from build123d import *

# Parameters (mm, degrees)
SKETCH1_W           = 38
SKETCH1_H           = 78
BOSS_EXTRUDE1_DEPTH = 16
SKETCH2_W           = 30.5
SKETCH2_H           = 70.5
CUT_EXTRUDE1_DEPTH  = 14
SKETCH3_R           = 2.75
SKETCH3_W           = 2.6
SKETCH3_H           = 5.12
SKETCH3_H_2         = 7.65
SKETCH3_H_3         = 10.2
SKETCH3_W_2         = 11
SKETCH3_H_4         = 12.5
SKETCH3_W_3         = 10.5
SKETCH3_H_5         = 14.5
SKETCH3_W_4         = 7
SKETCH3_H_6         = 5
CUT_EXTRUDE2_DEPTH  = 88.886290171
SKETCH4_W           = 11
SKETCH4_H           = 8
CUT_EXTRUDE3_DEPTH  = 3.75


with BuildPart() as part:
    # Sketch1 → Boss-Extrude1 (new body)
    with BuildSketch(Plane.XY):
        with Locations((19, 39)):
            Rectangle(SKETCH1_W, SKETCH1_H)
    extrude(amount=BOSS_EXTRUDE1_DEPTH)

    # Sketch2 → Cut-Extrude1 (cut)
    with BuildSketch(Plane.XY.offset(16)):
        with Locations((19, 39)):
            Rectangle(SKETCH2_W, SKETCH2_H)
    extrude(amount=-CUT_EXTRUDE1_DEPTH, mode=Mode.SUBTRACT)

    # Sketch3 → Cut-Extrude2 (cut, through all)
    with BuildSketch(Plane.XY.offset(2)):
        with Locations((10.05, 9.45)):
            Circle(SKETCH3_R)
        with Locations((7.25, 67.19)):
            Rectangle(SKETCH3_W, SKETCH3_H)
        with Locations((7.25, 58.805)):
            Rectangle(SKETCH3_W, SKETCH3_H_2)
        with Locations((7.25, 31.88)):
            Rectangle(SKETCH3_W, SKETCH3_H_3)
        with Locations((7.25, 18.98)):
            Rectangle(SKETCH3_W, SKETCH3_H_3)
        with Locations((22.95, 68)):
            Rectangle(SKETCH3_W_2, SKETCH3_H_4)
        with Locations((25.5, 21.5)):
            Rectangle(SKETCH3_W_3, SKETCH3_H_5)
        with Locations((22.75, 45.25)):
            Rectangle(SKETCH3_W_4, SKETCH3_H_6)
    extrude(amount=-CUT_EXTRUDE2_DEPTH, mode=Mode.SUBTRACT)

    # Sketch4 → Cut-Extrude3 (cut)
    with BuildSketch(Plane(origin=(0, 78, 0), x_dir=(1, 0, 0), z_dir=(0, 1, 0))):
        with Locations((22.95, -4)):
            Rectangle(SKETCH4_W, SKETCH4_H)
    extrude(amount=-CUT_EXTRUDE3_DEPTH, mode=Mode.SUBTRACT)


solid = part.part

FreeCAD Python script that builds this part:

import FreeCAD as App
import Part
import Sketcher
from FreeCAD import Vector
Q = App.Units.Quantity

doc = App.newDocument("Part")
body = doc.addObject("PartDesign::Body", "Body")

sketch1 = doc.addObject("Sketcher::SketchObject", "Sketch")
body.addObject(sketch1)
sketch1.AttachmentSupport = (doc.XY_Plane, [""])
sketch1.MapMode = "FlatFace"
sketch1.addGeometry([
    Part.LineSegment(Vector(0, 78, 0), Vector(0, 0, 0)),
    Part.LineSegment(Vector(0, 0, 0), Vector(38, 0, 0)),
    Part.LineSegment(Vector(38, 0, 0), Vector(38, 78, 0)),
    Part.LineSegment(Vector(38, 78, 0), Vector(0, 78, 0)),
], False)
sketch1.addConstraint([
    Sketcher.Constraint("Coincident", 0, 2, 1, 1),
    Sketcher.Constraint("Coincident", 1, 2, 2, 1),
    Sketcher.Constraint("Coincident", 2, 2, 3, 1),
    Sketcher.Constraint("Coincident", 3, 2, 0, 1),
    Sketcher.Constraint("Vertical", 0),
    Sketcher.Constraint("Horizontal", 1),
    Sketcher.Constraint("Vertical", 2),
    Sketcher.Constraint("Horizontal", 3),
    Sketcher.Constraint("Coincident", 0, 2, -1, 1),
    Sketcher.Constraint("DistanceX", 1, 1, 1, 2, Q("38 mm")),
    Sketcher.Constraint("DistanceY", 0, 2, 0, 1, Q("78 mm")),
])
pad1 = doc.addObject("PartDesign::Pad", "Pad")
body.addObject(pad1)
pad1.Profile = sketch1
pad1.Length = 16

sketch2 = doc.addObject("Sketcher::SketchObject", "Sketch001")
body.addObject(sketch2)
sketch2.AttachmentSupport = (doc.XY_Plane, [""])
sketch2.MapMode = "FlatFace"
sketch2.AttachmentOffset = App.Placement(Vector(0, 0, 16), App.Rotation())
sketch2.addGeometry([
    Part.LineSegment(Vector(3.75, 74.25, 0), Vector(3.75, 3.75, 0)),
    Part.LineSegment(Vector(3.75, 3.75, 0), Vector(34.25, 3.75, 0)),
    Part.LineSegment(Vector(34.25, 3.75, 0), Vector(34.25, 74.25, 0)),
    Part.LineSegment(Vector(34.25, 74.25, 0), Vector(3.75, 74.25, 0)),
], False)
sketch2.addConstraint([
    Sketcher.Constraint("Coincident", 0, 2, 1, 1),
    Sketcher.Constraint("Coincident", 1, 2, 2, 1),
    Sketcher.Constraint("Coincident", 2, 2, 3, 1),
    Sketcher.Constraint("Coincident", 3, 2, 0, 1),
    Sketcher.Constraint("Vertical", 0),
    Sketcher.Constraint("Horizontal", 1),
    Sketcher.Constraint("Vertical", 2),
    Sketcher.Constraint("Horizontal", 3),
    Sketcher.Constraint("DistanceX", 1, 1, 1, 2, Q("30.5 mm")),
    Sketcher.Constraint("DistanceY", 0, 2, 0, 1, Q("70.5 mm")),
    Sketcher.Constraint("DistanceX", -1, 1, 0, 2, Q("3.75 mm")),
    Sketcher.Constraint("DistanceY", -1, 1, 0, 2, Q("3.75 mm")),
])
pocket1 = doc.addObject("PartDesign::Pocket", "Pocket")
body.addObject(pocket1)
pocket1.Profile = sketch2
pocket1.Length = 14

sketch3 = doc.addObject("Sketcher::SketchObject", "Sketch002")
body.addObject(sketch3)
sketch3.AttachmentSupport = (doc.XY_Plane, [""])
sketch3.MapMode = "FlatFace"
sketch3.AttachmentOffset = App.Placement(Vector(0, 0, 2), App.Rotation())
sketch3.addGeometry([
    Part.Circle(Vector(10.05, 9.45, 0), Vector(0, 0, 1), 2.75),
    Part.LineSegment(Vector(5.95, 69.75, 0), Vector(5.95, 64.63, 0)),
    Part.LineSegment(Vector(5.95, 64.63, 0), Vector(8.55, 64.63, 0)),
    Part.LineSegment(Vector(8.55, 64.63, 0), Vector(8.55, 69.75, 0)),
    Part.LineSegment(Vector(8.55, 69.75, 0), Vector(5.95, 69.75, 0)),
    Part.LineSegment(Vector(5.95, 62.63, 0), Vector(5.95, 54.98, 0)),
    Part.LineSegment(Vector(5.95, 54.98, 0), Vector(8.55, 54.98, 0)),
    Part.LineSegment(Vector(8.55, 54.98, 0), Vector(8.55, 62.63, 0)),
    Part.LineSegment(Vector(8.55, 62.63, 0), Vector(5.95, 62.63, 0)),
    Part.LineSegment(Vector(5.95, 36.98, 0), Vector(5.95, 26.78, 0)),
    Part.LineSegment(Vector(5.95, 26.78, 0), Vector(8.55, 26.78, 0)),
    Part.LineSegment(Vector(8.55, 26.78, 0), Vector(8.55, 36.98, 0)),
    Part.LineSegment(Vector(8.55, 36.98, 0), Vector(5.95, 36.98, 0)),
    Part.LineSegment(Vector(5.95, 24.08, 0), Vector(5.95, 13.88, 0)),
    Part.LineSegment(Vector(5.95, 13.88, 0), Vector(8.55, 13.88, 0)),
    Part.LineSegment(Vector(8.55, 13.88, 0), Vector(8.55, 24.08, 0)),
    Part.LineSegment(Vector(8.55, 24.08, 0), Vector(5.95, 24.08, 0)),
    Part.LineSegment(Vector(17.45, 74.25, 0), Vector(17.45, 61.75, 0)),
    Part.LineSegment(Vector(17.45, 61.75, 0), Vector(28.45, 61.75, 0)),
    Part.LineSegment(Vector(28.45, 61.75, 0), Vector(28.45, 74.25, 0)),
    Part.LineSegment(Vector(28.45, 74.25, 0), Vector(17.45, 74.25, 0)),
    Part.LineSegment(Vector(20.25, 28.75, 0), Vector(20.25, 14.25, 0)),
    Part.LineSegment(Vector(20.25, 14.25, 0), Vector(30.75, 14.25, 0)),
    Part.LineSegment(Vector(30.75, 14.25, 0), Vector(30.75, 28.75, 0)),
    Part.LineSegment(Vector(30.75, 28.75, 0), Vector(20.25, 28.75, 0)),
    Part.LineSegment(Vector(19.25, 47.75, 0), Vector(19.25, 42.75, 0)),
    Part.LineSegment(Vector(19.25, 42.75, 0), Vector(26.25, 42.75, 0)),
    Part.LineSegment(Vector(26.25, 42.75, 0), Vector(26.25, 47.75, 0)),
    Part.LineSegment(Vector(26.25, 47.75, 0), Vector(19.25, 47.75, 0)),
], False)
sketch3.addConstraint([
    Sketcher.Constraint("Coincident", 1, 2, 2, 1),
    Sketcher.Constraint("Coincident", 2, 2, 3, 1),
    Sketcher.Constraint("Coincident", 3, 2, 4, 1),
    Sketcher.Constraint("Coincident", 4, 2, 1, 1),
    Sketcher.Constraint("Coincident", 5, 2, 6, 1),
    Sketcher.Constraint("Coincident", 6, 2, 7, 1),
    Sketcher.Constraint("Coincident", 7, 2, 8, 1),
    Sketcher.Constraint("Coincident", 8, 2, 5, 1),
    Sketcher.Constraint("Coincident", 9, 2, 10, 1),
    Sketcher.Constraint("Coincident", 10, 2, 11, 1),
    Sketcher.Constraint("Coincident", 11, 2, 12, 1),
    Sketcher.Constraint("Coincident", 12, 2, 9, 1),
    Sketcher.Constraint("Coincident", 13, 2, 14, 1),
    Sketcher.Constraint("Coincident", 14, 2, 15, 1),
    Sketcher.Constraint("Coincident", 15, 2, 16, 1),
    Sketcher.Constraint("Coincident", 16, 2, 13, 1),
    Sketcher.Constraint("Coincident", 17, 2, 18, 1),
    Sketcher.Constraint("Coincident", 18, 2, 19, 1),
    Sketcher.Constraint("Coincident", 19, 2, 20, 1),
    Sketcher.Constraint("Coincident", 20, 2, 17, 1),
    Sketcher.Constraint("Coincident", 21, 2, 22, 1),
    Sketcher.Constraint("Coincident", 22, 2, 23, 1),
    Sketcher.Constraint("Coincident", 23, 2, 24, 1),
    Sketcher.Constraint("Coincident", 24, 2, 21, 1),
    Sketcher.Constraint("Coincident", 25, 2, 26, 1),
    Sketcher.Constraint("Coincident", 26, 2, 27, 1),
    Sketcher.Constraint("Coincident", 27, 2, 28, 1),
    Sketcher.Constraint("Coincident", 28, 2, 25, 1),
    Sketcher.Constraint("Vertical", 1),
    Sketcher.Constraint("Horizontal", 2),
    Sketcher.Constraint("Vertical", 3),
    Sketcher.Constraint("Horizontal", 4),
    Sketcher.Constraint("Vertical", 5),
    Sketcher.Constraint("Horizontal", 6),
    Sketcher.Constraint("Vertical", 7),
    Sketcher.Constraint("Horizontal", 8),
    Sketcher.Constraint("Vertical", 9),
    Sketcher.Constraint("Horizontal", 10),
    Sketcher.Constraint("Vertical", 11),
    Sketcher.Constraint("Horizontal", 12),
    Sketcher.Constraint("Vertical", 13),
    Sketcher.Constraint("Horizontal", 14),
    Sketcher.Constraint("Vertical", 15),
    Sketcher.Constraint("Horizontal", 16),
    Sketcher.Constraint("Vertical", 17),
    Sketcher.Constraint("Horizontal", 18),
    Sketcher.Constraint("Vertical", 19),
    Sketcher.Constraint("Horizontal", 20),
    Sketcher.Constraint("Vertical", 21),
    Sketcher.Constraint("Horizontal", 22),
    Sketcher.Constraint("Vertical", 23),
    Sketcher.Constraint("Horizontal", 24),
    Sketcher.Constraint("Vertical", 25),
    Sketcher.Constraint("Horizontal", 26),
    Sketcher.Constraint("Vertical", 27),
    Sketcher.Constraint("Horizontal", 28),
    Sketcher.Constraint("Vertical", 4, 2, 5, 2),
    Sketcher.Constraint("Vertical", 3, 2, 6, 2),
    Sketcher.Constraint("Vertical", 8, 2, 9, 2),
    Sketcher.Constraint("Vertical", 7, 2, 10, 2),
    Sketcher.Constraint("Vertical", 12, 2, 13, 2),
    Sketcher.Constraint("Vertical", 11, 2, 14, 2),
    Sketcher.Constraint("Equal", 11, 13),
    Sketcher.Constraint("Diameter", 0, Q("5.5 mm")),
    Sketcher.Constraint("DistanceX", 18, 1, 18, 2, Q("11 mm")),
    Sketcher.Constraint("DistanceX", 26, 1, 26, 2, Q("7 mm")),
    Sketcher.Constraint("DistanceY", 25, 2, 25, 1, Q("5 mm")),
    Sketcher.Constraint("DistanceX", 2, 1, 2, 2, Q("2.6 mm")),
    Sketcher.Constraint("DistanceX", 22, 1, 22, 2, Q("10.5 mm")),
    Sketcher.Constraint("DistanceY", 9, 2, 9, 1, Q("10.2 mm")),
    Sketcher.Constraint("DistanceY", 17, 2, 17, 1, Q("12.5 mm")),
    Sketcher.Constraint("DistanceY", 21, 2, 21, 1, Q("14.5 mm")),
    Sketcher.Constraint("DistanceY", 7, 2, 2, 2, Q("2 mm")),
    Sketcher.Constraint("DistanceY", 11, 2, 6, 2, Q("18 mm")),
    Sketcher.Constraint("DistanceY", 18, 2, 3, 2, Q("8 mm")),
    Sketcher.Constraint("DistanceX", 25, 2, 24, 2, Q("1 mm")),
    Sketcher.Constraint("DistanceY", 24, 2, 25, 2, Q("14 mm")),
    Sketcher.Constraint("DistanceY", 26, 2, 18, 2, Q("19 mm")),
    Sketcher.Constraint("DistanceY", 1, 2, 1, 1, Q("5.12 mm")),
    Sketcher.Constraint("DistanceY", 5, 2, 5, 1, Q("7.65 mm")),
    Sketcher.Constraint("DistanceX", 1, 2, 0, 3, Q("4.1 mm")),
    Sketcher.Constraint("DistanceY", 0, 3, 3, 2, Q("60.3 mm")),
    Sketcher.Constraint("DistanceY", 13, 2, 9, 2, Q("12.9 mm")),
    Sketcher.Constraint("DistanceX", 7, 2, 17, 2, Q("8.9 mm")),
    Sketcher.Constraint("DistanceX", 0, 3, 21, 2, Q("10.2 mm")),
    Sketcher.Constraint("DistanceX", -1, 1, 0, 3, Q("10.05 mm")),
    Sketcher.Constraint("DistanceY", -1, 1, 0, 3, Q("9.45 mm")),
])
pocket2 = doc.addObject("PartDesign::Pocket", "Pocket001")
body.addObject(pocket2)
pocket2.Profile = sketch3
pocket2.Type = "ThroughAll"

sketch4 = doc.addObject("Sketcher::SketchObject", "Sketch003")
body.addObject(sketch4)
sketch4.AttachmentSupport = (doc.XZ_Plane, [""])
sketch4.MapMode = "FlatFace"
sketch4.AttachmentOffset = App.Placement(Vector(0, 0, -78), App.Rotation())
sketch4.addGeometry([
    Part.LineSegment(Vector(17.45, 0, 0), Vector(17.45, 8, 0)),
    Part.LineSegment(Vector(17.45, 8, 0), Vector(28.45, 8, 0)),
    Part.LineSegment(Vector(28.45, 8, 0), Vector(28.45, 0, 0)),
    Part.LineSegment(Vector(28.45, 0, 0), Vector(17.45, 0, 0)),
], False)
sketch4.addConstraint([
    Sketcher.Constraint("Coincident", 0, 2, 1, 1),
    Sketcher.Constraint("Coincident", 1, 2, 2, 1),
    Sketcher.Constraint("Coincident", 2, 2, 3, 1),
    Sketcher.Constraint("Coincident", 3, 2, 0, 1),
    Sketcher.Constraint("Vertical", 0),
    Sketcher.Constraint("Horizontal", 1),
    Sketcher.Constraint("Vertical", 2),
    Sketcher.Constraint("Horizontal", 3),
    Sketcher.Constraint("PointOnObject", 2, 2, -1),
    Sketcher.Constraint("DistanceX", 1, 1, 1, 2, Q("11 mm")),
    Sketcher.Constraint("DistanceY", 0, 1, 0, 2, Q("8 mm")),
    Sketcher.Constraint("DistanceX", -1, 1, 0, 2, Q("17.45 mm")),
])
pocket3 = doc.addObject("PartDesign::Pocket", "Pocket002")
body.addObject(pocket3)
pocket3.Profile = sketch4
pocket3.Length = 3.75
pocket3.Reversed = True

doc.recompute()
